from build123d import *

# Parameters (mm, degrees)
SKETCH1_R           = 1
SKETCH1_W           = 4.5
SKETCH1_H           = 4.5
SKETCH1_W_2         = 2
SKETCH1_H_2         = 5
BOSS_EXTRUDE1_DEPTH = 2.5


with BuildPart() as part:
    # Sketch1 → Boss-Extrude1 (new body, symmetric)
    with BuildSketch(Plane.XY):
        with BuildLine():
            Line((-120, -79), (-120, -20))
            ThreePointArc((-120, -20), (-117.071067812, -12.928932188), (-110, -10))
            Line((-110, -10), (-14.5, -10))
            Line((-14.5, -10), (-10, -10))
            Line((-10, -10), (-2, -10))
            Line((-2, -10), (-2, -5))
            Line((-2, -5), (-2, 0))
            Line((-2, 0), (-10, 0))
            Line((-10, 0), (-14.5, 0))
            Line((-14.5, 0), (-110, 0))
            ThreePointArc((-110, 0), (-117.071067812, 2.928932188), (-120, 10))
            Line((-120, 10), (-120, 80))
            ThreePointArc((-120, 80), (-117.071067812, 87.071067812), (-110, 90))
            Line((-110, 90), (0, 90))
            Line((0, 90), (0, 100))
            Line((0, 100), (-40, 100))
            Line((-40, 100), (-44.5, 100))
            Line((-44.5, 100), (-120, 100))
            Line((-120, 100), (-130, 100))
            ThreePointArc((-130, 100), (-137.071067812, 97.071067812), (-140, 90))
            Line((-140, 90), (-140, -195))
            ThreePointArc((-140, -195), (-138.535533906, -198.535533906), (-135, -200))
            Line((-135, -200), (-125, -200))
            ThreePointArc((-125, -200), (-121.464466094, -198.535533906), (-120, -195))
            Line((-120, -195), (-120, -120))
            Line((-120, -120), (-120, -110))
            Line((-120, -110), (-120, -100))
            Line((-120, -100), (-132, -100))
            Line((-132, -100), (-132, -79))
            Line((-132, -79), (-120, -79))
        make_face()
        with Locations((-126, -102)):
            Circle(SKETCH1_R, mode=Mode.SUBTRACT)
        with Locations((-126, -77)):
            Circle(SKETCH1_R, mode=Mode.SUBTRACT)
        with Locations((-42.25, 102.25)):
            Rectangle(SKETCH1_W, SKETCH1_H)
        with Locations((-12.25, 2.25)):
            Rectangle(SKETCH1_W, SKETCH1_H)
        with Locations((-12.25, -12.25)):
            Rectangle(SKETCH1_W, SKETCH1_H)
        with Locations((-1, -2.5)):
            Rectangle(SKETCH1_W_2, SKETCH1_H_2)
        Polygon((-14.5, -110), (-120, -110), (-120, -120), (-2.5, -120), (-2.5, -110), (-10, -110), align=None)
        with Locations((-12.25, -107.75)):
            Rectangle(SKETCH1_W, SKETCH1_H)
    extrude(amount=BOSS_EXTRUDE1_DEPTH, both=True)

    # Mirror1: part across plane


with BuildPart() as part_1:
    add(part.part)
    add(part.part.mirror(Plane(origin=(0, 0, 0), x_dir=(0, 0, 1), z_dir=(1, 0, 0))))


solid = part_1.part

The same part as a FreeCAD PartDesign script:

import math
import FreeCAD as App
import Part
import Sketcher

V = App.Vector

doc = App.newDocument("Part")
body = doc.addObject("PartDesign::Body", "Body")

# Sketch on XY plane
sketch1 = doc.addObject("Sketcher::SketchObject", "Sketch")
body.addObject(sketch1)
sketch1.AttachmentSupport = (doc.XY_Plane, [""])
sketch1.MapMode = "FlatFace"
sketch1.addGeometry([
    Part.LineSegment(V(-120, -79, 0), V(-120, -20, 0)),  # 0
    Part.ArcOfCircle(Part.Circle(V(-110, -20, 0), V(0, 0, 1), 10), math.radians(90), math.radians(180)),  # 1
    Part.LineSegment(V(-110, -10, 0), V(-14.5, -10, 0)),  # 2
    Part.LineSegment(V(-14.5, -10, 0), V(-14.5, -14.5, 0)),  # 3
    Part.LineSegment(V(-14.5, -14.5, 0), V(-10, -14.5, 0)),  # 4
    Part.LineSegment(V(-10, -14.5, 0), V(-10, -10, 0)),  # 5
    Part.LineSegment(V(-10, -10, 0), V(-2, -10, 0)),  # 6
    Part.LineSegment(V(-2, -10, 0), V(-2, -5, 0)),  # 7
    Part.LineSegment(V(-2, -5, 0), V(0, -5, 0)),  # 8
    Part.LineSegment(V(0, -5, 0), V(0, 0, 0)),  # 9
    Part.LineSegment(V(0, 0, 0), V(-10, 0, 0)),  # 10
    Part.LineSegment(V(-10, 0, 0), V(-10, 4.5, 0)),  # 11
    Part.LineSegment(V(-10, 4.5, 0), V(-14.5, 4.5, 0)),  # 12
    Part.LineSegment(V(-14.5, 4.5, 0), V(-14.5, 0, 0)),  # 13
    Part.LineSegment(V(-14.5, 0, 0), V(-110, 0, 0)),  # 14
    Part.ArcOfCircle(Part.Circle(V(-110, 10, 0), V(0, 0, 1), 10), math.radians(180), math.radians(270)),  # 15
    Part.LineSegment(V(-120, 10, 0), V(-120, 80, 0)),  # 16
    Part.ArcOfCircle(Part.Circle(V(-110, 80, 0), V(0, 0, 1), 10), math.radians(90), math.radians(180)),  # 17
    Part.LineSegment(V(-110, 90, 0), V(0, 90, 0)),  # 18
    Part.LineSegment(V(0, 90, 0), V(0, 100, 0)),  # 19
    Part.LineSegment(V(0, 100, 0), V(-40, 100, 0)),  # 20
    Part.LineSegment(V(-40, 100, 0), V(-40, 104.5, 0)),  # 21
    Part.LineSegment(V(-40, 104.5, 0), V(-44.5, 104.5, 0)),  # 22
    Part.LineSegment(V(-44.5, 104.5, 0), V(-44.5, 100, 0)),  # 23
    Part.LineSegment(V(-44.5, 100, 0), V(-130, 100, 0)),  # 24
    Part.ArcOfCircle(Part.Circle(V(-130, 90, 0), V(0, 0, 1), 10), math.radians(90), math.radians(180)),  # 25
    Part.LineSegment(V(-140, 90, 0), V(-140, -195, 0)),  # 26
    Part.ArcOfCircle(Part.Circle(V(-135, -195, 0), V(0, 0, 1), 5), math.radians(180), math.radians(270)),  # 27
    Part.LineSegment(V(-135, -200, 0), V(-125, -200, 0)),  # 28
    Part.ArcOfCircle(Part.Circle(V(-125, -195, 0), V(0, 0, 1), 5), math.radians(-90), math.radians(0)),  # 29
    Part.LineSegment(V(-120, -195, 0), V(-120, -120, 0)),  # 30
    Part.LineSegment(V(-120, -120, 0), V(-2.5, -120, 0)),  # 31
    Part.LineSegment(V(-2.5, -120, 0), V(-2.5, -110, 0)),  # 32
    Part.LineSegment(V(-2.5, -110, 0), V(-10, -110, 0)),  # 33
    Part.LineSegment(V(-10, -110, 0), V(-10, -105.5, 0)),  # 34
    Part.LineSegment(V(-10, -105.5, 0), V(-14.5, -105.5, 0)),  # 35
    Part.LineSegment(V(-14.5, -105.5, 0), V(-14.5, -110, 0)),  # 36
    Part.LineSegment(V(-14.5, -110, 0), V(-120, -110, 0)),  # 37
    Part.LineSegment(V(-120, -110, 0), V(-120, -100, 0)),  # 38
    Part.LineSegment(V(-120, -100, 0), V(-132, -100, 0)),  # 39
    Part.LineSegment(V(-132, -100, 0), V(-132, -79, 0)),  # 40
    Part.LineSegment(V(-132, -79, 0), V(-120, -79, 0)),  # 41
    Part.Circle(V(-126, -102, 0), V(0, 0, 1), 1),  # 42
    Part.Circle(V(-126, -77, 0), V(0, 0, 1), 1),  # 43
], False)
sketch1.addConstraint([
    Sketcher.Constraint("Tangent", 0, 2, 1, 2),
    Sketcher.Constraint("Tangent", 1, 1, 2, 1),
    Sketcher.Constraint("Coincident", 2, 2, 3, 1),
    Sketcher.Constraint("Coincident", 3, 2, 4, 1),
    Sketcher.Constraint("Coincident", 4, 2, 5, 1),
    Sketcher.Constraint("Coincident", 5, 2, 6, 1),
    Sketcher.Constraint("Coincident", 6, 2, 7, 1),
    Sketcher.Constraint("Coincident", 7, 2, 8, 1),
    Sketcher.Constraint("Coincident", 8, 2, 9, 1),
    Sketcher.Constraint("Coincident", 9, 2, 10, 1),
    Sketcher.Constraint("Coincident", 10, 2, 11, 1),
    Sketcher.Constraint("Coincident", 11, 2, 12, 1),
    Sketcher.Constraint("Coincident", 12, 2, 13, 1),
    Sketcher.Constraint("Coincident", 13, 2, 14, 1),
    Sketcher.Constraint("Tangent", 14, 2, 15, 2),
    Sketcher.Constraint("Tangent", 15, 1, 16, 1),
    Sketcher.Constraint("Tangent", 16, 2, 17, 2),
    Sketcher.Constraint("Tangent", 17, 1, 18, 1),
    Sketcher.Constraint("Coincident", 18, 2, 19, 1),
    Sketcher.Constraint("Coincident", 19, 2, 20, 1),
    Sketcher.Constraint("Coincident", 20, 2, 21, 1),
    Sketcher.Constraint("Coincident", 21, 2, 22, 1),
    Sketcher.Constraint("Coincident", 22, 2, 23, 1),
    Sketcher.Constraint("Coincident", 23, 2, 24, 1),
    Sketcher.Constraint("Tangent", 24, 2, 25, 1),
    Sketcher.Constraint("Tangent", 25, 2, 26, 1),
    Sketcher.Constraint("Tangent", 26, 2, 27, 1),
    Sketcher.Constraint("Tangent", 27, 2, 28, 1),
    Sketcher.Constraint("Tangent", 28, 2, 29, 1),
    Sketcher.Constraint("Tangent", 29, 2, 30, 1),
    Sketcher.Constraint("Coincident", 30, 2, 31, 1),
    Sketcher.Constraint("Coincident", 31, 2, 32, 1),
    Sketcher.Constraint("Coincident", 32, 2, 33, 1),
    Sketcher.Constraint("Coincident", 33, 2, 34, 1),
    Sketcher.Constraint("Coincident", 34, 2, 35, 1),
    Sketcher.Constraint("Coincident", 35, 2, 36, 1),
    Sketcher.Constraint("Coincident", 36, 2, 37, 1),
    Sketcher.Constraint("Coincident", 37, 2, 38, 1),
    Sketcher.Constraint("Coincident", 38, 2, 39, 1),
    Sketcher.Constraint("Coincident", 39, 2, 40, 1),
    Sketcher.Constraint("Coincident", 40, 2, 41, 1),
    Sketcher.Constraint("Coincident", 41, 2, 0, 1),
    Sketcher.Constraint("Vertical", 0),
    Sketcher.Constraint("Horizontal", 2),
    Sketcher.Constraint("Vertical", 3),
    Sketcher.Constraint("Horizontal", 4),
    Sketcher.Constraint("Vertical", 5),
    Sketcher.Constraint("Horizontal", 6),
    Sketcher.Constraint("Vertical", 7),
    Sketcher.Constraint("Horizontal", 8),
    Sketcher.Constraint("Vertical", 9),
    Sketcher.Constraint("Horizontal", 10),
    Sketcher.Constraint("Vertical", 11),
    Sketcher.Constraint("Horizontal", 12),
    Sketcher.Constraint("Vertical", 13),
    Sketcher.Constraint("Horizontal", 14),
    Sketcher.Constraint("Vertical", 16),
    Sketcher.Constraint("Horizontal", 18),
    Sketcher.Constraint("Vertical", 19),
    Sketcher.Constraint("Horizontal", 20),
    Sketcher.Constraint("Vertical", 21),
    Sketcher.Constraint("Horizontal", 22),
    Sketcher.Constraint("Vertical", 23),
    Sketcher.Constraint("Horizontal", 24),
    Sketcher.Constraint("Vertical", 26),
    Sketcher.Constraint("Horizontal", 28),
    Sketcher.Constraint("Vertical", 30),
    Sketcher.Constraint("Horizontal", 31),
    Sketcher.Constraint("Vertical", 32),
    Sketcher.Constraint("Horizontal", 33),
    Sketcher.Constraint("Vertical", 34),
    Sketcher.Constraint("Horizontal", 35),
    Sketcher.Constraint("Vertical", 36),
    Sketcher.Constraint("Horizontal", 37),
    Sketcher.Constraint("Vertical", 38),
    Sketcher.Constraint("Horizontal", 39),
    Sketcher.Constraint("Vertical", 40),
    Sketcher.Constraint("Horizontal", 41),
    Sketcher.Constraint("Coincident", 9, 2, -1, 1),
    Sketcher.Constraint("Equal", 1, 15),
    Sketcher.Constraint("Equal", 15, 17),
    Sketcher.Constraint("Equal", 17, 25),
    Sketcher.Constraint("Equal", 27, 29),
    Sketcher.Constraint("Equal", 42, 43),
    Sketcher.Constraint("PointOnObject", 13, 2, -1),
    Sketcher.Constraint("PointOnObject", 18, 2, -2),
    Sketcher.Constraint("Horizontal", 2, 2, 5, 2),
    Sketcher.Constraint("Horizontal", 25, 3, 17, 1),
    Sketcher.Constraint("Horizontal", 20, 2, 23, 2),
    Sketcher.Constraint("Horizontal", 33, 2, 36, 2),
    Sketcher.Constraint("Vertical", 1, 3, 15, 3),
    Sketcher.Constraint("Vertical", 42, 3, 43, 3),
    Sketcher.Constraint("Vertical", 5, 2, 10, 2),
    Sketcher.Constraint("Vertical", 3, 2, 12, 2),
    Sketcher.Constraint("Vertical", 16, 2, 29, 2),
    Sketcher.Constraint("Vertical", 11, 2, 33, 2),
    Sketcher.Constraint("Vertical", 13, 2, 35, 2),
    Sketcher.Constraint("Vertical", 30, 2, 37, 2),
    Sketcher.Constraint("Equal", 12, 22),
    Sketcher.Constraint("Equal", 10, 28),
    Sketcher.Constraint("Equal", 35, 3),
    Sketcher.Constraint("Equal", 7, 9),
    Sketcher.Constraint("Equal", 5, 11),
    Sketcher.Constraint("Equal", 28, 19),
    Sketcher.Constraint("Equal", 13, 21),
    Sketcher.Constraint("Equal", 19, 32),
    Sketcher.Constraint("Equal", 23, 34),
    Sketcher.Constraint("Equal", 32, 38),
    Sketcher.Constraint("Diameter", 42, 2.0),
    Sketcher.Constraint("Radius", 1, 10.0),
    Sketcher.Constraint("Radius", 27, 5.0),
    Sketcher.Constraint("DistanceX", 6, 1, 6, 2, 8.0),
    Sketcher.Constraint("DistanceX", 18, 1, 18, 2, 110.0),
    Sketcher.Constraint("DistanceX", 20, 2, 20, 1, 40.0),
    Sketcher.Constraint("DistanceX", 39, 2, 39, 1, 12.0),
    Sketcher.Constraint("DistanceY", 0, 1, 0, 2, 59.0),
    Sketcher.Constraint("DistanceY", 7, 1, 7, 2, 5.0),
    Sketcher.Constraint("DistanceY", 16, 1, 16, 2, 70.0),
    Sketcher.Constraint("DistanceY", 26, 2, 26, 1, 285.0),
    Sketcher.Constraint("DistanceY", 30, 1, 30, 2, 75.0),
    Sketcher.Constraint("DistanceX", 2, 1, 2, 2, 95.5),
    Sketcher.Constraint("DistanceX", 31, 1, 31, 2, 117.5),
    Sketcher.Constraint("DistanceX", 42, 3, -1, 1, 126.0),
    Sketcher.Constraint("DistanceY", 42, 3, -1, 1, 102.0),
    Sketcher.Constraint("DistanceY", 43, 3, -1, 1, 77.0),
])
pad1 = doc.addObject("PartDesign::Pad", "Pad")
body.addObject(pad1)
pad1.Profile = sketch1
pad1.Length = 5
pad1.Midplane = True
body2 = doc.addObject("PartDesign::Body", "Body001")
doc.recompute()

body2.BaseFeature = body
doc.recompute()

mirroring = doc.addObject("Part::Mirroring", "Mirroring")
mirroring.Source = body
mirroring.Base = V(0, 0, 0)
mirroring.Normal = V(1, 0, 0)
body3 = doc.addObject("PartDesign::Body", "Body002")
body3.BaseFeature = mirroring
boolean = doc.addObject("PartDesign::Boolean", "Boolean")
body2.addObject(boolean)
boolean.Type = "Fuse"
boolean.addObjects([body3])
doc.recompute()
mirroring.Visibility = False

doc.recompute()
